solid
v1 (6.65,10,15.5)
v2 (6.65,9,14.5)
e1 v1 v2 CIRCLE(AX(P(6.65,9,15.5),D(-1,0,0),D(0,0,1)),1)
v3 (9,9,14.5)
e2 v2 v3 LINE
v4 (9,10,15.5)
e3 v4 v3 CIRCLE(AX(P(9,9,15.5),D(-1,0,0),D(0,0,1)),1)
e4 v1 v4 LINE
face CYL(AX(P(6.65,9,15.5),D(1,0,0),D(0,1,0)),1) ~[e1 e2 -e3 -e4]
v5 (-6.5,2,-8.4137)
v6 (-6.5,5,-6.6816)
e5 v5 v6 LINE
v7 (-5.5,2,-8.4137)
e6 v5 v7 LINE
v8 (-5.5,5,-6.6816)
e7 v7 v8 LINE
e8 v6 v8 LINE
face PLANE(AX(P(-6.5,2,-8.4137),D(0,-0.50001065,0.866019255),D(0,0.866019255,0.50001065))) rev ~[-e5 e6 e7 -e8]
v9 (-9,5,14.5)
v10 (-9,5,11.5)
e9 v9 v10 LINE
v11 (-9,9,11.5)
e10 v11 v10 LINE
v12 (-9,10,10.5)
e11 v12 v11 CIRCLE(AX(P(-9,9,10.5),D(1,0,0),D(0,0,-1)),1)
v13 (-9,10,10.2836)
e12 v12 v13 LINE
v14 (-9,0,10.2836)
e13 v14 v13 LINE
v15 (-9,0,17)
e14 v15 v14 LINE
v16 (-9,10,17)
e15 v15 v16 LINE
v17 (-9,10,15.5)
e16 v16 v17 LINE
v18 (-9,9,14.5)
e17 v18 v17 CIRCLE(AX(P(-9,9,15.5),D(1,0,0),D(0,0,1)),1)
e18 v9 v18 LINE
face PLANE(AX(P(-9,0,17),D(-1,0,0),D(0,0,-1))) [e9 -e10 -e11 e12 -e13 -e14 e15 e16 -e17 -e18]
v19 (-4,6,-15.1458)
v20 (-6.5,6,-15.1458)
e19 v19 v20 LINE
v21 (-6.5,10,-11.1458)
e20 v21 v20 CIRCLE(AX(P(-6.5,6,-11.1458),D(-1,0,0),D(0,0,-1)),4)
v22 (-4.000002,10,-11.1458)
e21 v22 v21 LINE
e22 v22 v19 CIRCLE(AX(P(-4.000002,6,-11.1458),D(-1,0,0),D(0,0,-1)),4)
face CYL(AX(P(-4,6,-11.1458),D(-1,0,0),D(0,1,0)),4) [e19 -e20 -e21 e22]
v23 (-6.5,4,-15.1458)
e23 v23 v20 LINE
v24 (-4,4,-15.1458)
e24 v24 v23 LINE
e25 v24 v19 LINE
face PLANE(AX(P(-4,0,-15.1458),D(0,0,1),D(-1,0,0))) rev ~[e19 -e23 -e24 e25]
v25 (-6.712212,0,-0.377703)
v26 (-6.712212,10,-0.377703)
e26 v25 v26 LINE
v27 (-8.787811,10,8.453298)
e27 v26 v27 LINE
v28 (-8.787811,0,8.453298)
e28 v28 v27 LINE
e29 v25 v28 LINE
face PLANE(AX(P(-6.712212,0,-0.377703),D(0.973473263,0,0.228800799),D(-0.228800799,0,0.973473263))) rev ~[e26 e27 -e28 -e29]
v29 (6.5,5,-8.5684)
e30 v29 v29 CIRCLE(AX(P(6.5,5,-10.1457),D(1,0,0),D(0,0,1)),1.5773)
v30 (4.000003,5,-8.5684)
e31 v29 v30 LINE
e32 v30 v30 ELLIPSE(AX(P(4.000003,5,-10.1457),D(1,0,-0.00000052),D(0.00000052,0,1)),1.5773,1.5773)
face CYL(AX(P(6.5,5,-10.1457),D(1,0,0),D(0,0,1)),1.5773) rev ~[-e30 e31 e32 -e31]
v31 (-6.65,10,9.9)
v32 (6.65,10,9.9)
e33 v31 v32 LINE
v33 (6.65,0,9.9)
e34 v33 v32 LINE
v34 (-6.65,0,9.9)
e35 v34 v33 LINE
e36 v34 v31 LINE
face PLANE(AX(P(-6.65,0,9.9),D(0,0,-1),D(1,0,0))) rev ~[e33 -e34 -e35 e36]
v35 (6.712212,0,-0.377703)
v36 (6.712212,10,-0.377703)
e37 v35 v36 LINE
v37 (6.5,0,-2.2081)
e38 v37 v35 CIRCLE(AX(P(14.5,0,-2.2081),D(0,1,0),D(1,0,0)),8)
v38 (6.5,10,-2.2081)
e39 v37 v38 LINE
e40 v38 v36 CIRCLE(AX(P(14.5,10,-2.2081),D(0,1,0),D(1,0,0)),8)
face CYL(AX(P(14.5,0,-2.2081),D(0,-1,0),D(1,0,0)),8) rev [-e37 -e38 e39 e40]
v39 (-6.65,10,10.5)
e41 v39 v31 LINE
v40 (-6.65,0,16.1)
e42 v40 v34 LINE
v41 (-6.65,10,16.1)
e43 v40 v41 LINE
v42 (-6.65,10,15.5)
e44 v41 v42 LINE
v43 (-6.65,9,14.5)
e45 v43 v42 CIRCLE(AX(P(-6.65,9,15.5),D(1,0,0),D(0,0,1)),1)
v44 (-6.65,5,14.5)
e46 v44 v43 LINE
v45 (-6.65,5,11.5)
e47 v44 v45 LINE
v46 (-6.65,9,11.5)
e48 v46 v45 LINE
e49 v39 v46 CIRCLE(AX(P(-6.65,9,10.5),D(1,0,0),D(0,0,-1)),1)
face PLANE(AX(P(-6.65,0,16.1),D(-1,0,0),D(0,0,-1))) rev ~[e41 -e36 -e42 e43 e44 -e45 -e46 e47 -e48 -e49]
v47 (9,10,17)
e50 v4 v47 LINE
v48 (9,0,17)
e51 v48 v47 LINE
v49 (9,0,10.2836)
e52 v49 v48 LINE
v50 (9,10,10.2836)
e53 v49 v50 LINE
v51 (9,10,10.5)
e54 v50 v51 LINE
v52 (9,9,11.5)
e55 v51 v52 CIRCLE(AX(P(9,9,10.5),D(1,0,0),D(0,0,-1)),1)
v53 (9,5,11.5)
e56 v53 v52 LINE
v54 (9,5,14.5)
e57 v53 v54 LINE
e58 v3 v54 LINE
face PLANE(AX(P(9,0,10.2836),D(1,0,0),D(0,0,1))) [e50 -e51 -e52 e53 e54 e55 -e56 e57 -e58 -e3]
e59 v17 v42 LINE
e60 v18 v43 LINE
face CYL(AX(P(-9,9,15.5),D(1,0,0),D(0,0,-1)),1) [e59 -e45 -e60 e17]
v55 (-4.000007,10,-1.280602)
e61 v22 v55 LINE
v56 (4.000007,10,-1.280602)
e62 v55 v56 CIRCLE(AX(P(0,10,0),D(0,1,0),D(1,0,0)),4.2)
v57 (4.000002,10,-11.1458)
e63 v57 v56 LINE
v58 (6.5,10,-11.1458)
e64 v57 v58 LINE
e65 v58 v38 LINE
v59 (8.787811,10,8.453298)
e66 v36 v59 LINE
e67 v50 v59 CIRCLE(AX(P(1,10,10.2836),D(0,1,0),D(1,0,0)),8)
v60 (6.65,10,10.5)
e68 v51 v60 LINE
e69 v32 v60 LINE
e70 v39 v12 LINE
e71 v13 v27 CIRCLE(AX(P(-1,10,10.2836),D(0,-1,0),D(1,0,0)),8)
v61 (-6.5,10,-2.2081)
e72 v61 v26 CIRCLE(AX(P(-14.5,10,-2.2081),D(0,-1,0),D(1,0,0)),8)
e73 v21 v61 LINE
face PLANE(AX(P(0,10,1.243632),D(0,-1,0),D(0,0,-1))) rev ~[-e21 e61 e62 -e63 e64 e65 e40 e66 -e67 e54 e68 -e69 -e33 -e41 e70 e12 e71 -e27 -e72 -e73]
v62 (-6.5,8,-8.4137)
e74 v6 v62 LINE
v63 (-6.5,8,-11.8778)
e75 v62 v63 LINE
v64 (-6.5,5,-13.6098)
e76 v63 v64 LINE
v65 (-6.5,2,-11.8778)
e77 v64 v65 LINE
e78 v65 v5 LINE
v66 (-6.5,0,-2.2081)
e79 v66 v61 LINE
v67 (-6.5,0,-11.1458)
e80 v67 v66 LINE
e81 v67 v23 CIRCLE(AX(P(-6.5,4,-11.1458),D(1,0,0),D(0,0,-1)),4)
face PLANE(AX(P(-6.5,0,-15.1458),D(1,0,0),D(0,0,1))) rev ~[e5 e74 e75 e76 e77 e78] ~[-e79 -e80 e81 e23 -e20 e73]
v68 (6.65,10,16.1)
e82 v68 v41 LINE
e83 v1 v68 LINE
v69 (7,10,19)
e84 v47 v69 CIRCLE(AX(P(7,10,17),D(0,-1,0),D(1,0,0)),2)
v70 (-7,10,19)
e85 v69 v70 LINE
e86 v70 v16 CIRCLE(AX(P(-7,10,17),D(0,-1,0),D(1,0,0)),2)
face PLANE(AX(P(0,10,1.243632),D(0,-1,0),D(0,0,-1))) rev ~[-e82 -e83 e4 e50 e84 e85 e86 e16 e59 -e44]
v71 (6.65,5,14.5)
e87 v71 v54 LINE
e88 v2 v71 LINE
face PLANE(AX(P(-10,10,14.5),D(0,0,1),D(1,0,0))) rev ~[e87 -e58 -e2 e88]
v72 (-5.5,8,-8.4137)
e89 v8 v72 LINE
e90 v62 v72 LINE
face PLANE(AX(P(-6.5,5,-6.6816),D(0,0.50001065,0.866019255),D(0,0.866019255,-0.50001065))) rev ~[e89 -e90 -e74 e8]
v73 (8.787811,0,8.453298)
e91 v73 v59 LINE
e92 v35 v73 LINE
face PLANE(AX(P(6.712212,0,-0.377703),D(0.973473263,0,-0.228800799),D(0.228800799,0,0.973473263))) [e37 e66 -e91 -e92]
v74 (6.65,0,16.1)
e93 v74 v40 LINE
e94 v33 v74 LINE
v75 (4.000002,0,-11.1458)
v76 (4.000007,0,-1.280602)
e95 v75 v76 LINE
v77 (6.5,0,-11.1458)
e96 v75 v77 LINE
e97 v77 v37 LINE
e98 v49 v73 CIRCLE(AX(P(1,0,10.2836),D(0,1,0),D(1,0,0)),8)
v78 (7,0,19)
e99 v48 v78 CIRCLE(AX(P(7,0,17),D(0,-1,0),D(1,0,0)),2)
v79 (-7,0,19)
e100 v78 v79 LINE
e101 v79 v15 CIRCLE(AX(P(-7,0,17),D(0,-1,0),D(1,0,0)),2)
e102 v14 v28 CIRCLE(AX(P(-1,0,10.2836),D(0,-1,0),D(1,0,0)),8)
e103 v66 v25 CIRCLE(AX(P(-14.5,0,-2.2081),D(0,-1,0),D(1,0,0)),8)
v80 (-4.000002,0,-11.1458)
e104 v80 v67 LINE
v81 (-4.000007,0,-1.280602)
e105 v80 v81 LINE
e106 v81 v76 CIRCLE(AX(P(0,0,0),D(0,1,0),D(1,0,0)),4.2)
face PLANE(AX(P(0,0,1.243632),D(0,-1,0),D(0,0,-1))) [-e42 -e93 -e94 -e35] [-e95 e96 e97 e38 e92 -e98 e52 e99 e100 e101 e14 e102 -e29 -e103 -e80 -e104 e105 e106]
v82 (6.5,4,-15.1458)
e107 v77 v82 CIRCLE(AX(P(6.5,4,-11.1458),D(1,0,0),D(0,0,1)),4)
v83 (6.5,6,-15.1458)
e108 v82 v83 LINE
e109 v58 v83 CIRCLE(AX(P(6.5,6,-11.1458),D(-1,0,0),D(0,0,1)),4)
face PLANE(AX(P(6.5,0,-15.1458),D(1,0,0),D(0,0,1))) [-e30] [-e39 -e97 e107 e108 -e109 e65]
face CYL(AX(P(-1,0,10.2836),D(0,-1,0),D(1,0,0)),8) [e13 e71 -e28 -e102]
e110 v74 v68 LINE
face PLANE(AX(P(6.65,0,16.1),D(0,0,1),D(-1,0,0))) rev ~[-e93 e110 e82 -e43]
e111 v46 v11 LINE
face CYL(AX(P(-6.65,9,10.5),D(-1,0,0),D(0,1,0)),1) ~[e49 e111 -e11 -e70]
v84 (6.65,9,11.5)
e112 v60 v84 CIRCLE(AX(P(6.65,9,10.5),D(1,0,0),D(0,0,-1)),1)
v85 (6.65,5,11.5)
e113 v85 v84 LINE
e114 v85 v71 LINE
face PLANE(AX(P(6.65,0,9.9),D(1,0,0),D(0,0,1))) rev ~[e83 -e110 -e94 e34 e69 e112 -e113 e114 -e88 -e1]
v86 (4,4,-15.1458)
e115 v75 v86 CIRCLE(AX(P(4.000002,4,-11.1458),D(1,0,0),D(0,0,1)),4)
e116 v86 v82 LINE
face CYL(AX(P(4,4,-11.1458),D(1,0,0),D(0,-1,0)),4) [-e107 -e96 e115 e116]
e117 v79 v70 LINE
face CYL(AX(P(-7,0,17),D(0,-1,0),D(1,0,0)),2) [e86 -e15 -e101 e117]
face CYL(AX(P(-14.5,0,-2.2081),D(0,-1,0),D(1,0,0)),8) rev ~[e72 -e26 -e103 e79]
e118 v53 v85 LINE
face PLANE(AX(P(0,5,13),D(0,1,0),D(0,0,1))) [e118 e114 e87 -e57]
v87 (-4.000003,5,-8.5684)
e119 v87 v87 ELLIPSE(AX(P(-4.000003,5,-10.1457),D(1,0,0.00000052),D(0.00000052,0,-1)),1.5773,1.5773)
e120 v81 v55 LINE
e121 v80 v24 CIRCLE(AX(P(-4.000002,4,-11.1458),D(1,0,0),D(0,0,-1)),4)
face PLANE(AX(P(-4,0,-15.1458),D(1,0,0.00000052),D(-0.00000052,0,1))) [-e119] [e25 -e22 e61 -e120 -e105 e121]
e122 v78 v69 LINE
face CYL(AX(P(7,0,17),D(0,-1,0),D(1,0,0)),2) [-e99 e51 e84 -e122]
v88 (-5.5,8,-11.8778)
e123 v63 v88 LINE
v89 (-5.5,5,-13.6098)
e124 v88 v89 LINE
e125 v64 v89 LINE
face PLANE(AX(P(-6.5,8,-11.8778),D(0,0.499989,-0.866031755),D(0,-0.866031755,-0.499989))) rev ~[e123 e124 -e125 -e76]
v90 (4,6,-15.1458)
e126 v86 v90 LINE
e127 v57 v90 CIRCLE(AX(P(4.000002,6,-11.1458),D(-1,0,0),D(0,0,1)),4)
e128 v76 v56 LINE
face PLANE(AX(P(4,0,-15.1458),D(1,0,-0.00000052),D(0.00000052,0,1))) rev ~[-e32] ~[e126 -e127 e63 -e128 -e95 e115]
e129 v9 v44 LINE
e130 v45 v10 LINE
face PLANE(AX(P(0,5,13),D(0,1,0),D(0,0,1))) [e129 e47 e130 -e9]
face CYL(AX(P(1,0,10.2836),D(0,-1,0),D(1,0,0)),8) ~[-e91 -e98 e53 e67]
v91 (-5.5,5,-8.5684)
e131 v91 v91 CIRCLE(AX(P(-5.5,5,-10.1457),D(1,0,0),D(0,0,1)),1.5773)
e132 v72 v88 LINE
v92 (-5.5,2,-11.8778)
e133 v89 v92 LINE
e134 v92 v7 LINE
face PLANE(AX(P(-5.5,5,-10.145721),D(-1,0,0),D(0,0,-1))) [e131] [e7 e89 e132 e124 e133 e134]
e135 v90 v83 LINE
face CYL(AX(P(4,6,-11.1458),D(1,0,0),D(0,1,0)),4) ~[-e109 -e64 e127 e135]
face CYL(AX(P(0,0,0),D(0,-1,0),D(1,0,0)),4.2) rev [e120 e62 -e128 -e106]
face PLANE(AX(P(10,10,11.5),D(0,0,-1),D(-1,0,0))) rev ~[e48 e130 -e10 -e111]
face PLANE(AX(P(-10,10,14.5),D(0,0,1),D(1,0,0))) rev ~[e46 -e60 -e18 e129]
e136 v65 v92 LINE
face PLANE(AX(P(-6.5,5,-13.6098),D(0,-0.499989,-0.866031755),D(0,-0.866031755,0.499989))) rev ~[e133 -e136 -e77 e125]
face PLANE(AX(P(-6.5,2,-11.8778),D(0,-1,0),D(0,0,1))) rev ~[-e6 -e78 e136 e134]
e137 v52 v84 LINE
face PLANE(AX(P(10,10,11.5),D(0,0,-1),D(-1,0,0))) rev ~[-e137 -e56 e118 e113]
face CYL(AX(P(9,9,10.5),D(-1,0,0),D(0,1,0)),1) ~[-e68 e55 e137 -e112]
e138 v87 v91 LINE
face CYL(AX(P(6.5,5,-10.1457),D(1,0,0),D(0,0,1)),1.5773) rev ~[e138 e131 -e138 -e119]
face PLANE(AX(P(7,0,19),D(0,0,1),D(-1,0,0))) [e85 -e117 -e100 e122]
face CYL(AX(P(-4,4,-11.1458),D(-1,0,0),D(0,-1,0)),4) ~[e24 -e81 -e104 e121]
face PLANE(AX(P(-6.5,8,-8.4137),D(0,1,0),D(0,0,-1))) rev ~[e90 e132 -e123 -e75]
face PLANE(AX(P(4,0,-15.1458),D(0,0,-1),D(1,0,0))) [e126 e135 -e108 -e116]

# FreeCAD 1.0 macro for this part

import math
import FreeCAD as App
import Part
import Sketcher
from FreeCAD import Vector
Q = App.Units.Quantity


def edges_at(feature, points):
    """Names of the edges that pass closest to the given points."""
    edges = feature.Shape.Edges
    near = lambda p: min(range(len(edges)), key=lambda i: edges[i].distToShape(Part.Vertex(*p))[0])
    return sorted({f"Edge{near(p) + 1}" for p in points})


def add_polygon(sketch, points):
    """Adds a closed chain of lines whose ends are joined by coincident constraints."""
    first, n = sketch.GeometryCount, len(points)
    for a, b in zip(points, points[1:] + points[:1]):
        sketch.addGeometry(Part.LineSegment(App.Vector(*a, 0), App.Vector(*b, 0)), False)
    for i in range(n):
        sketch.addConstraint(Sketcher.Constraint("Coincident", first + i, 2, first + (i + 1) % n, 1))

doc = App.newDocument("Part")
params = doc.addObject("Spreadsheet::Sheet", "Params")
for row, (alias, value) in enumerate([
    ("sketch1_radius", "8 mm"),
    ("sketch1_radius2", "2 mm"),
    ("sketch1_radius3", "4.2 mm"),
    ("sketch1_width", "14 mm"),
    ("sketch1_width2", "2.5 mm"),
    ("pad1_length", "10 mm"),
    ("pocket1_length", "13 mm"),
    ("pocket2_length", "1 mm"),
    ("fillet_radius", "4 mm"),
    ("sketch4_width", "20 mm"),
    ("sketch4_height", "3 mm"),
    ("pocket3_length", "5 mm"),
    ("fillet2_radius", "1 mm"),
], start=1):
    params.set(f"A{row}", alias)
    params.set(f"B{row}", "=" + value)
    params.setAlias(f"B{row}", alias)

body = doc.addObject("PartDesign::Body", "Body")

# Sketch on XZ plane
sketch1 = body.newObject("Sketcher::SketchObject", "Sketch")
sketch1.AttachmentSupport = (doc.getObject("XZ_Plane"), [""])
sketch1.MapMode = "FlatFace"
sketch1.addGeometry(Part.ArcOfCircle(Part.Circle(Vector(1, 10.3, 0), Vector(0, 0, 1), 8), math.radians(-13.23), math.radians(0)), False)  # 0
sketch1.addGeometry(Part.LineSegment(Vector(9, 10.3, 0), Vector(9, 17, 0)), False)  # 1
sketch1.addGeometry(Part.ArcOfCircle(Part.Circle(Vector(7, 17, 0), Vector(0, 0, 1), 2), math.radians(0), math.radians(90)), False)  # 2
sketch1.addGeometry(Part.LineSegment(Vector(7, 19, 0), Vector(-7, 19, 0)), False)  # 3
sketch1.addGeometry(Part.ArcOfCircle(Part.Circle(Vector(-7, 17, 0), Vector(0, 0, 1), 2), math.radians(90), math.radians(180)), False)  # 4
sketch1.addGeometry(Part.LineSegment(Vector(-9, 17, 0), Vector(-9, 10.3, 0)), False)  # 5
sketch1.addGeometry(Part.ArcOfCircle(Part.Circle(Vector(-1, 10.3, 0), Vector(0, 0, 1), 8), math.radians(180), math.radians(193.23)), False)  # 6
sketch1.addGeometry(Part.LineSegment(Vector(-8.8, 8.5, 0), Vector(-6.7, -0.4, 0)), False)  # 7
sketch1.addGeometry(Part.ArcOfCircle(Part.Circle(Vector(-14.5, -2.2, 0), Vector(0, 0, 1), 8), math.radians(0), math.radians(13.23)), False)  # 8
sketch1.addGeometry(Part.LineSegment(Vector(-6.5, -2.2, 0), Vector(-6.5, -15.1, 0)), False)  # 9
sketch1.addGeometry(Part.LineSegment(Vector(-6.5, -15.1, 0), Vector(-4, -15.1, 0)), False)  # 10
sketch1.addGeometry(Part.LineSegment(Vector(-4, -15.1, 0), Vector(-4, -1.3, 0)), False)  # 11
sketch1.addGeometry(Part.ArcOfCircle(Part.Circle(Vector(0, 0, 0), Vector(0, 0, 1), 4.2), math.radians(-18), math.radians(198)), False)  # 12
sketch1.addGeometry(Part.LineSegment(Vector(4, -1.3, 0), Vector(4, -15.1, 0)), False)  # 13
sketch1.addGeometry(Part.LineSegment(Vector(4, -15.1, 0), Vector(6.5, -15.1, 0)), False)  # 14
sketch1.addGeometry(Part.LineSegment(Vector(6.5, -15.1, 0), Vector(6.5, -2.2, 0)), False)  # 15
sketch1.addGeometry(Part.ArcOfCircle(Part.Circle(Vector(14.5, -2.2, 0), Vector(0, 0, 1), 8), math.radians(166.77), math.radians(180)), False)  # 16
sketch1.addGeometry(Part.LineSegment(Vector(6.7, -0.4, 0), Vector(8.8, 8.5, 0)), False)  # 17
add_polygon(sketch1, [(6.7, 9.9), (-6.7, 9.9), (-6.7, 16.1), (6.7, 16.1)])  # lines 18-21
sketch1.addConstraint(Sketcher.Constraint("Tangent", 0, 2, 1, 1))
sketch1.addConstraint(Sketcher.Constraint("Tangent", 1, 2, 2, 1))
sketch1.addConstraint(Sketcher.Constraint("Tangent", 2, 2, 3, 1))
sketch1.addConstraint(Sketcher.Constraint("Tangent", 3, 2, 4, 1))
sketch1.addConstraint(Sketcher.Constraint("Tangent", 4, 2, 5, 1))
sketch1.addConstraint(Sketcher.Constraint("Tangent", 5, 2, 6, 1))
sketch1.addConstraint(Sketcher.Constraint("Tangent", 6, 2, 7, 1))
sketch1.addConstraint(Sketcher.Constraint("Tangent", 7, 2, 8, 2))
sketch1.addConstraint(Sketcher.Constraint("Tangent", 8, 1, 9, 1))
sketch1.addConstraint(Sketcher.Constraint("Coincident", 9, 2, 10, 1))
sketch1.addConstraint(Sketcher.Constraint("Coincident", 10, 2, 11, 1))
sketch1.addConstraint(Sketcher.Constraint("Coincident", 11, 2, 12, 2))
sketch1.addConstraint(Sketcher.Constraint("Coincident", 12, 1, 13, 1))
sketch1.addConstraint(Sketcher.Constraint("Coincident", 13, 2, 14, 1))
sketch1.addConstraint(Sketcher.Constraint("Coincident", 14, 2, 15, 1))
sketch1.addConstraint(Sketcher.Constraint("Tangent", 15, 2, 16, 2))
sketch1.addConstraint(Sketcher.Constraint("Tangent", 16, 1, 17, 1))
sketch1.addConstraint(Sketcher.Constraint("Tangent", 17, 2, 0, 1))
sketch1.addConstraint(Sketcher.Constraint("Vertical", 1))
sketch1.addConstraint(Sketcher.Constraint("Horizontal", 3))
sketch1.addConstraint(Sketcher.Constraint("Vertical", 5))
sketch1.addConstraint(Sketcher.Constraint("Vertical", 9))
sketch1.addConstraint(Sketcher.Constraint("Horizontal", 10))
sketch1.addConstraint(Sketcher.Constraint("Vertical", 11))
sketch1.addConstraint(Sketcher.Constraint("Vertical", 13))
sketch1.addConstraint(Sketcher.Constraint("Horizontal", 14))
sketch1.addConstraint(Sketcher.Constraint("Vertical", 15))
sketch1.addConstraint(Sketcher.Constraint("Horizontal", 18))
sketch1.addConstraint(Sketcher.Constraint("Vertical", 19))
sketch1.addConstraint(Sketcher.Constraint("Horizontal", 20))
sketch1.addConstraint(Sketcher.Constraint("Vertical", 21))
sketch1.addConstraint(Sketcher.Constraint("Coincident", 12, 3, -1, 1))
sketch1.addConstraint(Sketcher.Constraint("Equal", 2, 4))
sketch1.addConstraint(Sketcher.Constraint("Equal", 0, 6))
sketch1.addConstraint(Sketcher.Constraint("Equal", 6, 8))
sketch1.addConstraint(Sketcher.Constraint("Equal", 8, 16))
sketch1.addConstraint(Sketcher.Constraint("Symmetric", 0, 3, 6, 3, -2))
sketch1.addConstraint(Sketcher.Constraint("Symmetric", 8, 3, 16, 3, -2))
sketch1.addConstraint(Sketcher.Constraint("Symmetric", 10, 2, 13, 2, -2))
sketch1.addConstraint(Sketcher.Constraint("Radius", 0, Q("8 mm")))
sketch1.addConstraint(Sketcher.Constraint("Radius", 2, Q("2 mm")))
sketch1.addConstraint(Sketcher.Constraint("Radius", 12, Q("4.2 mm")))
sketch1.addConstraint(Sketcher.Constraint("DistanceX", 3, 2, 3, 1, Q("14 mm")))
sketch1.addConstraint(Sketcher.Constraint("DistanceX", 18, 2, -1, 1, Q("6.65 mm")))
sketch1.addConstraint(Sketcher.Constraint("DistanceX", -1, 1, 20, 2, Q("6.65 mm")))
sketch1.addConstraint(Sketcher.Constraint("DistanceX", 10, 1, 10, 2, Q("2.5 mm")))
sketch1.addConstraint(Sketcher.Constraint("DistanceY", 19, 1, 19, 2, Q("6.2 mm")))
sketch1.addConstraint(Sketcher.Constraint("DistanceY", -1, 1, 2, 3, Q("17 mm")))
sketch1.addConstraint(Sketcher.Constraint("DistanceX", 10, 2, -1, 1, Q("4 mm")))
sketch1.addConstraint(Sketcher.Constraint("DistanceY", -1, 1, 18, 2, Q("9.9 mm")))
sketch1.addConstraint(Sketcher.Constraint("DistanceY", 1, 1, 1, 2, Q("6.7164 mm")))
sketch1.addConstraint(Sketcher.Constraint("DistanceY", 9, 2, 9, 1, Q("12.9377 mm")))
sketch1.addConstraint(Sketcher.Constraint("DistanceY", 11, 1, 11, 2, Q("13.8652 mm")))
sketch1.setExpression("Constraints[43]", "Params.sketch1_radius")
sketch1.setExpression("Constraints[44]", "Params.sketch1_radius2")
sketch1.setExpression("Constraints[45]", "Params.sketch1_radius3")
sketch1.setExpression("Constraints[46]", "Params.sketch1_width")
sketch1.setExpression("Constraints[49]", "Params.sketch1_width2")
pad1 = body.newObject("PartDesign::Pad", "Pad")
pad1.Profile = sketch1
pad1.setExpression("Length", "Params.pad1_length")
pad1.Reversed = True

# Sketch on YZ plane
sketch2 = body.newObject("Sketcher::SketchObject", "Sketch001")
sketch2.AttachmentSupport = (doc.getObject("YZ_Plane"), [""])
sketch2.MapMode = "FlatFace"
sketch2.AttachmentOffset = App.Placement(Vector(0, 0, 6.5), App.Rotation())
sketch2.addGeometry(Part.Circle(Vector(5, -10.1, 0), Vector(0, 0, 1), 1.6), False)
sketch2.addConstraint(Sketcher.Constraint("DistanceX", -1, 1, 0, 3, Q("5 mm")))
sketch2.addConstraint(Sketcher.Constraint("Diameter", 0, Q("3.1546 mm")))
sketch2.addConstraint(Sketcher.Constraint("DistanceY", 0, 3, -1, 1, Q("10.1457 mm")))
pocket1 = body.newObject("PartDesign::Pocket", "Pocket")
pocket1.Profile = sketch2
pocket1.setExpression("Length", "Params.pocket1_length")

# Sketch on YZ plane
sketch3 = body.newObject("Sketcher::SketchObject", "Sketch002")
sketch3.AttachmentSupport = (doc.getObject("YZ_Plane"), [""])
sketch3.MapMode = "FlatFace"
sketch3.AttachmentOffset = App.Placement(Vector(0, 0, -6.5), App.Rotation())
add_polygon(sketch3, [(2, -11.9), (2, -8.4), (5, -6.7), (8, -8.4), (8, -11.9), (5, -13.6)])  # lines 0-5
sketch3.addConstraint(Sketcher.Constraint("Vertical", 0))
sketch3.addConstraint(Sketcher.Constraint("Vertical", 3))
sketch3.addConstraint(Sketcher.Constraint("Parallel", 1, 4))
sketch3.addConstraint(Sketcher.Constraint("Parallel", 2, 5))
sketch3.addConstraint(Sketcher.Constraint("Horizontal", 0, 2, 2, 2))
sketch3.addConstraint(Sketcher.Constraint("Horizontal", 3, 2, 5, 2))
sketch3.addConstraint(Sketcher.Constraint("Vertical", 1, 2, 4, 2))
sketch3.addConstraint(Sketcher.Constraint("Angle", 1, Q("30.0007 deg")))
sketch3.addConstraint(Sketcher.Constraint("DistanceX", -1, 1, 0, 2, Q("2 mm")))
sketch3.addConstraint(Sketcher.Constraint("DistanceX", -1, 1, 1, 2, Q("5 mm")))
sketch3.addConstraint(Sketcher.Constraint("DistanceY", 0, 1, 0, 2, Q("3.464 mm")))
sketch3.addConstraint(Sketcher.Constraint("DistanceY", 0, 2, -1, 1, Q("8.4137 mm")))
pocket2 = body.newObject("PartDesign::Pocket", "Pocket001")
pocket2.Profile = sketch3
pocket2.setExpression("Length", "Params.pocket2_length")
pocket2.Reversed = True
doc.recompute()

fillet = body.newObject("PartDesign::Fillet", "Fillet")
fillet.Base = (pocket2, edges_at(pocket2, [
    (-5.25, 0, -15.146),
    (-5.25, 10, -15.146),
    (5.25, 10, -15.146),
    (5.25, 0, -15.146),
]))
fillet.setExpression("Radius", "Params.fillet_radius")

# Sketch on XZ plane
sketch4 = body.newObject("Sketcher::SketchObject", "Sketch003")
sketch4.AttachmentSupport = (doc.getObject("XZ_Plane"), [""])
sketch4.MapMode = "FlatFace"
sketch4.AttachmentOffset = App.Placement(Vector(0, 0, -10), App.Rotation())
add_polygon(sketch4, [(10, 14.5), (10, 11.5), (-10, 11.5), (-10, 14.5)])  # lines 0-3
sketch4.addConstraint(Sketcher.Constraint("Vertical", 0))
sketch4.addConstraint(Sketcher.Constraint("Horizontal", 1))
sketch4.addConstraint(Sketcher.Constraint("Vertical", 2))
sketch4.addConstraint(Sketcher.Constraint("Horizontal", 3))
sketch4.addConstraint(Sketcher.Constraint("DistanceX", 1, 2, 1, 1, Q("20 mm")))
sketch4.addConstraint(Sketcher.Constraint("DistanceY", 0, 2, 0, 1, Q("3 mm")))
sketch4.addConstraint(Sketcher.Constraint("DistanceX", -1, 1, 0, 2, Q("10 mm")))
sketch4.addConstraint(Sketcher.Constraint("DistanceY", -1, 1, 0, 2, Q("11.5 mm")))
sketch4.setExpression("Constraints[8]", "Params.sketch4_width")
sketch4.setExpression("Constraints[9]", "Params.sketch4_height")
pocket3 = body.newObject("PartDesign::Pocket", "Pocket002")
pocket3.Profile = sketch4
pocket3.setExpression("Length", "Params.pocket3_length")
pocket3.Reversed = True
doc.recompute()

fillet2 = body.newObject("PartDesign::Fillet", "Fillet001")
fillet2.Base = (pocket3, edges_at(pocket3, [
    (7.825, 10, 11.5),
    (7.825, 10, 14.5),
    (-7.825, 10, 11.5),
    (-7.825, 10, 14.5),
]))
fillet2.setExpression("Radius", "Params.fillet2_radius")

doc.recompute()
